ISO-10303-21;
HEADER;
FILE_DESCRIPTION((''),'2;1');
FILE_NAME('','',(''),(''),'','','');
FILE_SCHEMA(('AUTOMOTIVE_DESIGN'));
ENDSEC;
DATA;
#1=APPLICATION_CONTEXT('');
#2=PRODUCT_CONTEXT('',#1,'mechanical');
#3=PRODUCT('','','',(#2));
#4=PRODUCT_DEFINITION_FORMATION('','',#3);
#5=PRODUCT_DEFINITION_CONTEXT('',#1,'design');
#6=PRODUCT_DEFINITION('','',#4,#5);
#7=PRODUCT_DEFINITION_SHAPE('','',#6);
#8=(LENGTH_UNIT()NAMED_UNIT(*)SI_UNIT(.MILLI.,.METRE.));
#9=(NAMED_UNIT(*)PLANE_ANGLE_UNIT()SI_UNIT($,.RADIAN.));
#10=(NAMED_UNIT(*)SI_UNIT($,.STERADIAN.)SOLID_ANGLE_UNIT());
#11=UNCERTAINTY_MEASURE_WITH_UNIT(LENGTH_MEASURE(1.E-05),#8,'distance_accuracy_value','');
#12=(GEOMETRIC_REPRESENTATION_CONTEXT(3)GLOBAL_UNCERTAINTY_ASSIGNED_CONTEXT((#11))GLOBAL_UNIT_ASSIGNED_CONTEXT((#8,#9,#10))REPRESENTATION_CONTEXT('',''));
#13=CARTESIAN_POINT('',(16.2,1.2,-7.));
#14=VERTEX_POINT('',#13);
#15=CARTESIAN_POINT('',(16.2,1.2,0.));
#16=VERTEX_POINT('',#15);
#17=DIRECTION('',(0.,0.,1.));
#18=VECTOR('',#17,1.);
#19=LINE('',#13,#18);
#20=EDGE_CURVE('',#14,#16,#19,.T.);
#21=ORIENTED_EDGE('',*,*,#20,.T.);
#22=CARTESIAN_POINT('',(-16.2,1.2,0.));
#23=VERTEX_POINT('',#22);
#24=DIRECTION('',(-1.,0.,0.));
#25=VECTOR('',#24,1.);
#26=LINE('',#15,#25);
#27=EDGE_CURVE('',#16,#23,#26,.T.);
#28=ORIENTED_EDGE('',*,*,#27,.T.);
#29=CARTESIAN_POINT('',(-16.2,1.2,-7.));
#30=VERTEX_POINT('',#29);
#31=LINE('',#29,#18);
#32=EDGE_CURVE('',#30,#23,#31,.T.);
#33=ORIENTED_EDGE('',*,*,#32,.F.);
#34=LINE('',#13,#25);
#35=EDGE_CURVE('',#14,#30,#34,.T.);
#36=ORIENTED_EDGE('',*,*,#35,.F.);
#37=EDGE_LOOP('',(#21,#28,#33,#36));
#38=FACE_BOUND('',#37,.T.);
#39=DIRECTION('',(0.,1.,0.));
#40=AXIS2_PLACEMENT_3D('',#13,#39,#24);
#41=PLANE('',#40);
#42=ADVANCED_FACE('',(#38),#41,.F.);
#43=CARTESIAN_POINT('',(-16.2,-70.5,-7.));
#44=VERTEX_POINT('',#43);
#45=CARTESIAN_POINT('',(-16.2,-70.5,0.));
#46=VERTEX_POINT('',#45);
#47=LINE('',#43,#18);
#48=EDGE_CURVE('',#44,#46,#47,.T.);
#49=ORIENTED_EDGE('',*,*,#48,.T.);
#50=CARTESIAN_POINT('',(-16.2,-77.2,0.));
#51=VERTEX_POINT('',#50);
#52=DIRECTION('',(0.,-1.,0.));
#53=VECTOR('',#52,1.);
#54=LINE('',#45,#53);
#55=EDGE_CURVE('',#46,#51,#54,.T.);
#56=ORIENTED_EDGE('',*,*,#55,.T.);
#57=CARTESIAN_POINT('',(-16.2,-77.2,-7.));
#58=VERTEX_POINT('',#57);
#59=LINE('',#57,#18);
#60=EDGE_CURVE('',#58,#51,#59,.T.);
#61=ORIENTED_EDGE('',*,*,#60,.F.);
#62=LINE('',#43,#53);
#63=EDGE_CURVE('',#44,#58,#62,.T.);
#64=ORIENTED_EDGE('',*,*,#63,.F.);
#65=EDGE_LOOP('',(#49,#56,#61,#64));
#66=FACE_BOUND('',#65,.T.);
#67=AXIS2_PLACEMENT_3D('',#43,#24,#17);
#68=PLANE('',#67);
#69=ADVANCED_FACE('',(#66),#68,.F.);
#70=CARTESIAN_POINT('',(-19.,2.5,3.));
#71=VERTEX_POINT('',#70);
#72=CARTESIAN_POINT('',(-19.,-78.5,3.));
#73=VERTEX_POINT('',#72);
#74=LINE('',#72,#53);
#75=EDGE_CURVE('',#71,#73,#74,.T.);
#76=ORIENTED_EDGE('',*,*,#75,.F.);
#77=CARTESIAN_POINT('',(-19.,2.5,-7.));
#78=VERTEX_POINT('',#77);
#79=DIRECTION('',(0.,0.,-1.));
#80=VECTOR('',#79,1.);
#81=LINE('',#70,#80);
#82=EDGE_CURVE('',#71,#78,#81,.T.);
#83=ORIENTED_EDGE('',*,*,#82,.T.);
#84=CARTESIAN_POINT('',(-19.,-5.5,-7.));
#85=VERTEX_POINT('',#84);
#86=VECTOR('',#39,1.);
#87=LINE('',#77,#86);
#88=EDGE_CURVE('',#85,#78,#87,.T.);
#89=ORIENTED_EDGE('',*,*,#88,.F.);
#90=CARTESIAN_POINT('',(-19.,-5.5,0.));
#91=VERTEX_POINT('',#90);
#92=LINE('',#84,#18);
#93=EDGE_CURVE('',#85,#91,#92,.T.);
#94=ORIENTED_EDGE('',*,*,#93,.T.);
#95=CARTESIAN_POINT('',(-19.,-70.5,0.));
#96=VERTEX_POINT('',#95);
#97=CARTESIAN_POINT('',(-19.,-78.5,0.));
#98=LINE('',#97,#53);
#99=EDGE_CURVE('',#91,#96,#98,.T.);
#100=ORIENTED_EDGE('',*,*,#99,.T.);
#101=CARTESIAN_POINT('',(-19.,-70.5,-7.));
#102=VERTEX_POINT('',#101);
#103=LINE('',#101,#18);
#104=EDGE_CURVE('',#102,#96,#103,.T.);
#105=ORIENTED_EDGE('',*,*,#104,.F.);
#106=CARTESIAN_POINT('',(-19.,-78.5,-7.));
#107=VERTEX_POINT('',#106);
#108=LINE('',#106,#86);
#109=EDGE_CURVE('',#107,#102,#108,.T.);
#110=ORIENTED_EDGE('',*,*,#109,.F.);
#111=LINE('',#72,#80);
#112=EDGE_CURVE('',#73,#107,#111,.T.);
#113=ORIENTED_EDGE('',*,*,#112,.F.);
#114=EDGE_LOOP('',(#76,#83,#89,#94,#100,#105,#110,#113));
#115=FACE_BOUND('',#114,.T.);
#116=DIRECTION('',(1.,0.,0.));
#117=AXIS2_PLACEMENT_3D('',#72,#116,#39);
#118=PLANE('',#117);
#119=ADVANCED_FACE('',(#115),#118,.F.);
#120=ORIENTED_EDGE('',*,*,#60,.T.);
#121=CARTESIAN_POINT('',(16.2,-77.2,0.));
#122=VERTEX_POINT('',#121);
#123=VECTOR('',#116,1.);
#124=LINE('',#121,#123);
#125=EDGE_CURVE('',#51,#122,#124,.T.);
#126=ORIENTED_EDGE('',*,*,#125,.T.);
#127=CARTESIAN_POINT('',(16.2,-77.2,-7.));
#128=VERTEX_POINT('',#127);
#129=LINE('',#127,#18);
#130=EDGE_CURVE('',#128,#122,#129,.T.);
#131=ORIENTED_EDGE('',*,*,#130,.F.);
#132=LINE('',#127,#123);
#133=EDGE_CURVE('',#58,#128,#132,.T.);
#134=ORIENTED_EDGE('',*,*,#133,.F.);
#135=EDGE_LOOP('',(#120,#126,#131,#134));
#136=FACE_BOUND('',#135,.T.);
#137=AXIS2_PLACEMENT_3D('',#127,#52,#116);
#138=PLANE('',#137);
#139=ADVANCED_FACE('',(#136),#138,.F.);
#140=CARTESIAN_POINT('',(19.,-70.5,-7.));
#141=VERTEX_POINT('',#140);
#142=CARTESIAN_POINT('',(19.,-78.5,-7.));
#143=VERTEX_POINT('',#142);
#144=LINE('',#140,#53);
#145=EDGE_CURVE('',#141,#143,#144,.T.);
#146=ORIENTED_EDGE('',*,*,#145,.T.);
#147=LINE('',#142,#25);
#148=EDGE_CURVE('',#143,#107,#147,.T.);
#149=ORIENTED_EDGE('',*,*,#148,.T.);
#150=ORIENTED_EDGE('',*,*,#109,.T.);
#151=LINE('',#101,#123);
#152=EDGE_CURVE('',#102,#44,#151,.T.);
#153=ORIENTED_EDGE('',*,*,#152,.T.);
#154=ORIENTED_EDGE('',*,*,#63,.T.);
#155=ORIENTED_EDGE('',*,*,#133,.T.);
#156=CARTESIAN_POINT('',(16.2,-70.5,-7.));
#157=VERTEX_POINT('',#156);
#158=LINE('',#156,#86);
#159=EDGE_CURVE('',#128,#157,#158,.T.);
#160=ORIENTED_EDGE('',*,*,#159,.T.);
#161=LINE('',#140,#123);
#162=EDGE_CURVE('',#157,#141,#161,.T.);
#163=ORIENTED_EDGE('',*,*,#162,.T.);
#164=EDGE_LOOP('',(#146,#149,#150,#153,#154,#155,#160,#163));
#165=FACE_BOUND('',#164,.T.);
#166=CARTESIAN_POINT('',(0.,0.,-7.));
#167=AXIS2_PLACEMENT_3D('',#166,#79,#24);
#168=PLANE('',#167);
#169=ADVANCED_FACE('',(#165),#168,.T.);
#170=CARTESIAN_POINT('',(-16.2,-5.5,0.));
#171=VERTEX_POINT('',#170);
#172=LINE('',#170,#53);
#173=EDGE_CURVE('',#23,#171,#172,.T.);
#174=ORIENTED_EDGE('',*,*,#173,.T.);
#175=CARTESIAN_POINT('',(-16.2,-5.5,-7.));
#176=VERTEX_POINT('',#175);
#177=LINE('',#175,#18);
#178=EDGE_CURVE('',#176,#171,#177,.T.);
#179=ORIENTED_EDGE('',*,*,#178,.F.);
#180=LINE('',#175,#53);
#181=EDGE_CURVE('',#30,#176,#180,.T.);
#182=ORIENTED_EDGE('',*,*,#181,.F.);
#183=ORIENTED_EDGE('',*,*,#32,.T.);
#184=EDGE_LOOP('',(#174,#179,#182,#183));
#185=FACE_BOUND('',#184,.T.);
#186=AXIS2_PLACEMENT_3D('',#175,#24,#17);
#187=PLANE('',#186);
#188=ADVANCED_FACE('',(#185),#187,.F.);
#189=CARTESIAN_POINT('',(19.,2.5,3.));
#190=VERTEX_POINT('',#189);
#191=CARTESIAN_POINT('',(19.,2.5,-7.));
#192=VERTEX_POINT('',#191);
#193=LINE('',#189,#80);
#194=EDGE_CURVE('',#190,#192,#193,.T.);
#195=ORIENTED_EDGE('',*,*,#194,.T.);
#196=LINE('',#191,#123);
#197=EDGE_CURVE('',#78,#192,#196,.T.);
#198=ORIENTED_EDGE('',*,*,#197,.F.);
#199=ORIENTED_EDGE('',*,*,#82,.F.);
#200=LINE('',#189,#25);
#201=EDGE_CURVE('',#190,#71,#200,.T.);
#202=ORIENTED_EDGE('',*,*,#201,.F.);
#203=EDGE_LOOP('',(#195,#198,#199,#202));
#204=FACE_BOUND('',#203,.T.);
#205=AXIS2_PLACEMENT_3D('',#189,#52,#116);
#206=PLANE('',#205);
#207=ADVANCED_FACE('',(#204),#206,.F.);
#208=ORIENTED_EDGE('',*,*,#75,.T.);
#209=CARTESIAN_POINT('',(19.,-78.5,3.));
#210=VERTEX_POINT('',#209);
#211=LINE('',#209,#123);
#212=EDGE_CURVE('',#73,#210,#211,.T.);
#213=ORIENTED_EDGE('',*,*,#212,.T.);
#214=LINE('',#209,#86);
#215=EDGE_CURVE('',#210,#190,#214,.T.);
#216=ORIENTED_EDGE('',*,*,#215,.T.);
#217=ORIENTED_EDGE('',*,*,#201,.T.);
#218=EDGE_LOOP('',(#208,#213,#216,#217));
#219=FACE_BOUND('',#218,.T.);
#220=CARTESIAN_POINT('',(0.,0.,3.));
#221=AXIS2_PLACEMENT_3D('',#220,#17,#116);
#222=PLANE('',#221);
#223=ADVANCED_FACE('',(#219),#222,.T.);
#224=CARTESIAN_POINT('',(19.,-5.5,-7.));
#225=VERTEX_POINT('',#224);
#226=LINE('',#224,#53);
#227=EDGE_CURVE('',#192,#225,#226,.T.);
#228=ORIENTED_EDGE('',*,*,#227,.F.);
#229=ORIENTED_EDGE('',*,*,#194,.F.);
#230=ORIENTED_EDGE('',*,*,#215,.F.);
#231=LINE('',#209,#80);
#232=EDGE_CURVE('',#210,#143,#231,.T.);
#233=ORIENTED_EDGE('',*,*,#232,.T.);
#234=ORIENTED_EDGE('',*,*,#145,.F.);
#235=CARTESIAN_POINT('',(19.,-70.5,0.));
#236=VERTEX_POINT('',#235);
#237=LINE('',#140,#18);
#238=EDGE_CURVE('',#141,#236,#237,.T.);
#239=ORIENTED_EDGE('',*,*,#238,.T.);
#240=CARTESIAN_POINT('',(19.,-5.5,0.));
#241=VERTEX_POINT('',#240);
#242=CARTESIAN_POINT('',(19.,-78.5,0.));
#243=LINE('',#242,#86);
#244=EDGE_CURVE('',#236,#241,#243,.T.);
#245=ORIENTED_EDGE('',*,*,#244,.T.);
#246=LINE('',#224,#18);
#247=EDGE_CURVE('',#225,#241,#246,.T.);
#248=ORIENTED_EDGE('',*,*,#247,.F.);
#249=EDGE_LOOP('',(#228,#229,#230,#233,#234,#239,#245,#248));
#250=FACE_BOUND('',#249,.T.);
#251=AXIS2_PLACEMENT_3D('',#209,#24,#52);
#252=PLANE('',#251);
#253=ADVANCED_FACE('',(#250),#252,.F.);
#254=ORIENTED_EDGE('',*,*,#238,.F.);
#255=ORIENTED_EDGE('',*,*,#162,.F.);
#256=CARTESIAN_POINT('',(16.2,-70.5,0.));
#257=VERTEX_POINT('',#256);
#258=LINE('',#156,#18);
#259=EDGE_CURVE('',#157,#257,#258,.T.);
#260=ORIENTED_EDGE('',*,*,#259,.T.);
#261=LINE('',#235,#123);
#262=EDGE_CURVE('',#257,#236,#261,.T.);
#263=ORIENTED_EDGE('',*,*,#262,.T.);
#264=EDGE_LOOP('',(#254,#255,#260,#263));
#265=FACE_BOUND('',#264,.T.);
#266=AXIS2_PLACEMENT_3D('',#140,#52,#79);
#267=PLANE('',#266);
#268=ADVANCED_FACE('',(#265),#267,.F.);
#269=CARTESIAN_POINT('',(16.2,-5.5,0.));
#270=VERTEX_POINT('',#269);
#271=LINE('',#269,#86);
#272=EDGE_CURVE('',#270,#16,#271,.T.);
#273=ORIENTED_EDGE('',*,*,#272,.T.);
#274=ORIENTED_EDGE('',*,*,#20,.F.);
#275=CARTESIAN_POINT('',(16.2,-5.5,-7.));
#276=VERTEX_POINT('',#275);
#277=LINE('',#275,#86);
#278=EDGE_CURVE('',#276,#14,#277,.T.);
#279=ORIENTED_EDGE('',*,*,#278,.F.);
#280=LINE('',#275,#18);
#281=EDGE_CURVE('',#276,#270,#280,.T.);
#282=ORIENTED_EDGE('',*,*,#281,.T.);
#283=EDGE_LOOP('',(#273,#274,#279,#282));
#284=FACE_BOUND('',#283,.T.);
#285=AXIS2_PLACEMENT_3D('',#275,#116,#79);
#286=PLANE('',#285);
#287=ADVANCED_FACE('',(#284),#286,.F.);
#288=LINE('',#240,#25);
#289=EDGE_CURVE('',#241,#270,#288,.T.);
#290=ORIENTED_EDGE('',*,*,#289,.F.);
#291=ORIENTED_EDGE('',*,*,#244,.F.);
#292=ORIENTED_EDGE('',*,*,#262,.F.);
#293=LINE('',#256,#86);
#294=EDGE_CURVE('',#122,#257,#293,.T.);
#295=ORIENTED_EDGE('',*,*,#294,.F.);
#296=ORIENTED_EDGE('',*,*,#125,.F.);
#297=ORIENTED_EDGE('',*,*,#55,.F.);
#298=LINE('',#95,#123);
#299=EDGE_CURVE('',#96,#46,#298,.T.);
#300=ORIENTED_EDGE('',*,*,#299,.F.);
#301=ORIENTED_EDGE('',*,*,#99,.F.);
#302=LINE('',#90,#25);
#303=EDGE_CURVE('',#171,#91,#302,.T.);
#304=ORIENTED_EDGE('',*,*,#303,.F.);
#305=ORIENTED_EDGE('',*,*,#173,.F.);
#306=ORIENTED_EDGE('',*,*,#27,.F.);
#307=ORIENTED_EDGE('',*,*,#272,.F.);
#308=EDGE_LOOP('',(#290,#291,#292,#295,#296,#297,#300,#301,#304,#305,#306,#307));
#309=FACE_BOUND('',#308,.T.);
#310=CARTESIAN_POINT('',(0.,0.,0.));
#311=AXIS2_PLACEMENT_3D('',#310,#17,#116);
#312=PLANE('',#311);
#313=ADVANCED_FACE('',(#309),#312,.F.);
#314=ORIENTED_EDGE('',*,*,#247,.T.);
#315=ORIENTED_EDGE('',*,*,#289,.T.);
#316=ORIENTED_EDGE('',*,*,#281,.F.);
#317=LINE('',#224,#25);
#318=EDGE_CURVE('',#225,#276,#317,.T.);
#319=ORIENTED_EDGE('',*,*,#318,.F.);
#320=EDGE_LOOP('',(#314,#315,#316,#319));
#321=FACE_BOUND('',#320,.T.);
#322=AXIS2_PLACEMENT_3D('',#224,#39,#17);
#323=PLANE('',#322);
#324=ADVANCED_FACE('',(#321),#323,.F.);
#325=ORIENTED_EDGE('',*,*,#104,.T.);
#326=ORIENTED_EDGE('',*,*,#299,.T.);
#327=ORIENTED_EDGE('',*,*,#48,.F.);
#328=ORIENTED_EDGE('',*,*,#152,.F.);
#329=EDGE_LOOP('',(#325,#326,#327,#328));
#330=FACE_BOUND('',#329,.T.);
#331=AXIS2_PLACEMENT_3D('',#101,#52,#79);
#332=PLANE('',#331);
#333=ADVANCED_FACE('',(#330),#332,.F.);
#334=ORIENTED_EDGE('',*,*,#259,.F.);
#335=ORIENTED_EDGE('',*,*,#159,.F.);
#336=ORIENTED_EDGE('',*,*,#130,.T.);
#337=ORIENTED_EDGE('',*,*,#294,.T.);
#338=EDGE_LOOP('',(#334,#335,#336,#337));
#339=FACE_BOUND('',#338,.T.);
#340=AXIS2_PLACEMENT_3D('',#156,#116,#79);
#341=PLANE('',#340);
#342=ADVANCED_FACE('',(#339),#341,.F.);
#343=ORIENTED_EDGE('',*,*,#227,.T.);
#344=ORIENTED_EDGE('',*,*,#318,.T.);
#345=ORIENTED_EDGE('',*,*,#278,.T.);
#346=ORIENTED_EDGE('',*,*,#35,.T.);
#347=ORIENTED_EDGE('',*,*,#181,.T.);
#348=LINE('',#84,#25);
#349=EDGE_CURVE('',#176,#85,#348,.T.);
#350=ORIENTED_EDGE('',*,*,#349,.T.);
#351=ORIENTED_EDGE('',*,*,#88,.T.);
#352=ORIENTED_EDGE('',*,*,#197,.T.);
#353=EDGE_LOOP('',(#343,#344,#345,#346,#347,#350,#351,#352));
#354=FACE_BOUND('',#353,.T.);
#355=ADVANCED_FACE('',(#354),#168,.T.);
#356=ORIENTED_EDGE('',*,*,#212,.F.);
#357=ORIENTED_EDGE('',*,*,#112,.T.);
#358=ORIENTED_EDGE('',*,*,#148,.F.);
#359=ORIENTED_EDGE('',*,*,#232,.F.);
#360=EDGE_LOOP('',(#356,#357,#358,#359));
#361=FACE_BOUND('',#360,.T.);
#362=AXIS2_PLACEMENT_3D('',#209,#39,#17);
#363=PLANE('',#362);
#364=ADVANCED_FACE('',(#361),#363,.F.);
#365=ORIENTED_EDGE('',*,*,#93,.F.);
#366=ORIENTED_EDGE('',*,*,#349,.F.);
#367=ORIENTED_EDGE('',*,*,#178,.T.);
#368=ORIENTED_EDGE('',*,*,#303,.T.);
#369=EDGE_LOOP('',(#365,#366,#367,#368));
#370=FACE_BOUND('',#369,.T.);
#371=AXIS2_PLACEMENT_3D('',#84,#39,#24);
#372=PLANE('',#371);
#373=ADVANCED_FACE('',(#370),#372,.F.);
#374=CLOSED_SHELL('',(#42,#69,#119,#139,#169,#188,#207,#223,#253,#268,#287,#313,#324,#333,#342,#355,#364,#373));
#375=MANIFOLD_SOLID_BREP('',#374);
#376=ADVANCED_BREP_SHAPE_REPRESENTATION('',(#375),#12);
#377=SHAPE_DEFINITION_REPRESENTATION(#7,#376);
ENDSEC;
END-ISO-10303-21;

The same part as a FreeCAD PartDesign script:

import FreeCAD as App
import Part
import Sketcher


def add_polygon(sketch, points):
    """Adds a closed chain of lines whose ends are joined by coincident constraints."""
    first, n = sketch.GeometryCount, len(points)
    for a, b in zip(points, points[1:] + points[:1]):
        sketch.addGeometry(Part.LineSegment(App.Vector(*a, 0), App.Vector(*b, 0)), False)
    for i in range(n):
        sketch.addConstraint(Sketcher.Constraint("Coincident", first + i, 2, first + (i + 1) % n, 1))

doc = App.newDocument("Part")
params = doc.addObject("Spreadsheet::Sheet", "Params")
for row, (alias, value) in enumerate([
    ("sketch1_width", "38 mm"),
    ("sketch1_height", "81 mm"),
    ("pad1_length", "3 mm"),
    ("sketch2_width", "38 mm"),
    ("sketch2_height", "8 mm"),
    ("sketch2_width2", "2.8 mm"),
    ("sketch2_height2", "6.7 mm"),
    ("pad2_length", "7 mm"),
], start=1):
    params.set(f"A{row}", alias)
    params.set(f"B{row}", "=" + value)
    params.setAlias(f"B{row}", alias)

body = doc.addObject("PartDesign::Body", "Body")

# Sketch on XY plane
sketch1 = body.newObject("Sketcher::SketchObject", "Sketch")
sketch1.AttachmentSupport = (doc.getObject("XY_Plane"), [""])
sketch1.MapMode = "FlatFace"
add_polygon(sketch1, [(-19, 2), (-19, -78), (19, -78), (19, 2)])  # lines 0-3
sketch1.addConstraint(Sketcher.Constraint("Vertical", 0))
sketch1.addConstraint(Sketcher.Constraint("Horizontal", 1))
sketch1.addConstraint(Sketcher.Constraint("Vertical", 2))
sketch1.addConstraint(Sketcher.Constraint("Horizontal", 3))
sketch1.addConstraint(Sketcher.Constraint("DistanceX", 1, 1, 1, 2, 38.0))
sketch1.addConstraint(Sketcher.Constraint("DistanceY", 0, 2, 0, 1, 81.0))
sketch1.addConstraint(Sketcher.Constraint("DistanceX", 0, 2, -1, 1, 19.0))
sketch1.addConstraint(Sketcher.Constraint("DistanceY", 0, 2, -1, 1, 78.5))
sketch1.setExpression("Constraints[8]", "Params.sketch1_width")
sketch1.setExpression("Constraints[9]", "Params.sketch1_height")
pad1 = body.newObject("PartDesign::Pad", "Pad")
pad1.Profile = sketch1
pad1.setExpression("Length", "Params.pad1_length")

# Sketch on XY plane
sketch2 = body.newObject("Sketcher::SketchObject", "Sketch001")
sketch2.AttachmentSupport = (doc.getObject("XY_Plane"), [""])
sketch2.MapMode = "FlatFace"
add_polygon(sketch2, [(19, 2.5), (19, -5.5), (16.2, -5.5), (16.2, 1.2), (-16.2, 1.2), (-16.2, -5.5), (-19, -5.5), (-19, 2.5)])  # lines 0-7
add_polygon(sketch2, [(-16.2, -77.2), (16.2, -77.2), (16.2, -70.5), (19, -70.5), (19, -78.5), (-19, -78.5), (-19, -70.5), (-16.2, -70.5)])  # lines 8-15
sketch2.addConstraint(Sketcher.Constraint("Vertical", 0))
sketch2.addConstraint(Sketcher.Constraint("Horizontal", 1))
sketch2.addConstraint(Sketcher.Constraint("Vertical", 2))
sketch2.addConstraint(Sketcher.Constraint("Horizontal", 3))
sketch2.addConstraint(Sketcher.Constraint("Vertical", 4))
sketch2.addConstraint(Sketcher.Constraint("Horizontal", 5))
sketch2.addConstraint(Sketcher.Constraint("Vertical", 6))
sketch2.addConstraint(Sketcher.Constraint("Horizontal", 7))
sketch2.addConstraint(Sketcher.Constraint("Horizontal", 8))
sketch2.addConstraint(Sketcher.Constraint("Vertical", 9))
sketch2.addConstraint(Sketcher.Constraint("Horizontal", 10))
sketch2.addConstraint(Sketcher.Constraint("Vertical", 11))
sketch2.addConstraint(Sketcher.Constraint("Horizontal", 12))
sketch2.addConstraint(Sketcher.Constraint("Vertical", 13))
sketch2.addConstraint(Sketcher.Constraint("Horizontal", 14))
sketch2.addConstraint(Sketcher.Constraint("Vertical", 15))
sketch2.addConstraint(Sketcher.Constraint("Symmetric", 1, 2, 4, 2, -2))
sketch2.addConstraint(Sketcher.Constraint("Symmetric", 10, 2, 13, 2, -2))
sketch2.addConstraint(Sketcher.Constraint("Vertical", 2, 2, 8, 2))
sketch2.addConstraint(Sketcher.Constraint("Vertical", 7, 2, 10, 2))
sketch2.addConstraint(Sketcher.Constraint("Vertical", 6, 2, 12, 2))
sketch2.addConstraint(Sketcher.Constraint("Vertical", 4, 2, 14, 2))
sketch2.addConstraint(Sketcher.Constraint("Equal", 4, 9))
sketch2.addConstraint(Sketcher.Constraint("Equal", 6, 11))
sketch2.addConstraint(Sketcher.Constraint("DistanceX", 7, 1, 7, 2, 38.0))
sketch2.addConstraint(Sketcher.Constraint("DistanceY", 0, 2, 0, 1, 8.0))
sketch2.addConstraint(Sketcher.Constraint("DistanceX", 1, 2, 1, 1, 2.8))
sketch2.addConstraint(Sketcher.Constraint("DistanceY", 2, 1, 2, 2, 6.7))
sketch2.addConstraint(Sketcher.Constraint("DistanceY", 9, 2, 1, 2, 65.0))
sketch2.addConstraint(Sketcher.Constraint("DistanceY", 0, 2, -1, 1, 5.5))
sketch2.setExpression("Constraints[40]", "Params.sketch2_width")
sketch2.setExpression("Constraints[41]", "Params.sketch2_height")
sketch2.setExpression("Constraints[42]", "Params.sketch2_width2")
sketch2.setExpression("Constraints[43]", "Params.sketch2_height2")
pad2 = body.newObject("PartDesign::Pad", "Pad001")
pad2.Profile = sketch2
pad2.setExpression("Length", "Params.pad2_length")
pad2.Reversed = True

doc.recompute()
